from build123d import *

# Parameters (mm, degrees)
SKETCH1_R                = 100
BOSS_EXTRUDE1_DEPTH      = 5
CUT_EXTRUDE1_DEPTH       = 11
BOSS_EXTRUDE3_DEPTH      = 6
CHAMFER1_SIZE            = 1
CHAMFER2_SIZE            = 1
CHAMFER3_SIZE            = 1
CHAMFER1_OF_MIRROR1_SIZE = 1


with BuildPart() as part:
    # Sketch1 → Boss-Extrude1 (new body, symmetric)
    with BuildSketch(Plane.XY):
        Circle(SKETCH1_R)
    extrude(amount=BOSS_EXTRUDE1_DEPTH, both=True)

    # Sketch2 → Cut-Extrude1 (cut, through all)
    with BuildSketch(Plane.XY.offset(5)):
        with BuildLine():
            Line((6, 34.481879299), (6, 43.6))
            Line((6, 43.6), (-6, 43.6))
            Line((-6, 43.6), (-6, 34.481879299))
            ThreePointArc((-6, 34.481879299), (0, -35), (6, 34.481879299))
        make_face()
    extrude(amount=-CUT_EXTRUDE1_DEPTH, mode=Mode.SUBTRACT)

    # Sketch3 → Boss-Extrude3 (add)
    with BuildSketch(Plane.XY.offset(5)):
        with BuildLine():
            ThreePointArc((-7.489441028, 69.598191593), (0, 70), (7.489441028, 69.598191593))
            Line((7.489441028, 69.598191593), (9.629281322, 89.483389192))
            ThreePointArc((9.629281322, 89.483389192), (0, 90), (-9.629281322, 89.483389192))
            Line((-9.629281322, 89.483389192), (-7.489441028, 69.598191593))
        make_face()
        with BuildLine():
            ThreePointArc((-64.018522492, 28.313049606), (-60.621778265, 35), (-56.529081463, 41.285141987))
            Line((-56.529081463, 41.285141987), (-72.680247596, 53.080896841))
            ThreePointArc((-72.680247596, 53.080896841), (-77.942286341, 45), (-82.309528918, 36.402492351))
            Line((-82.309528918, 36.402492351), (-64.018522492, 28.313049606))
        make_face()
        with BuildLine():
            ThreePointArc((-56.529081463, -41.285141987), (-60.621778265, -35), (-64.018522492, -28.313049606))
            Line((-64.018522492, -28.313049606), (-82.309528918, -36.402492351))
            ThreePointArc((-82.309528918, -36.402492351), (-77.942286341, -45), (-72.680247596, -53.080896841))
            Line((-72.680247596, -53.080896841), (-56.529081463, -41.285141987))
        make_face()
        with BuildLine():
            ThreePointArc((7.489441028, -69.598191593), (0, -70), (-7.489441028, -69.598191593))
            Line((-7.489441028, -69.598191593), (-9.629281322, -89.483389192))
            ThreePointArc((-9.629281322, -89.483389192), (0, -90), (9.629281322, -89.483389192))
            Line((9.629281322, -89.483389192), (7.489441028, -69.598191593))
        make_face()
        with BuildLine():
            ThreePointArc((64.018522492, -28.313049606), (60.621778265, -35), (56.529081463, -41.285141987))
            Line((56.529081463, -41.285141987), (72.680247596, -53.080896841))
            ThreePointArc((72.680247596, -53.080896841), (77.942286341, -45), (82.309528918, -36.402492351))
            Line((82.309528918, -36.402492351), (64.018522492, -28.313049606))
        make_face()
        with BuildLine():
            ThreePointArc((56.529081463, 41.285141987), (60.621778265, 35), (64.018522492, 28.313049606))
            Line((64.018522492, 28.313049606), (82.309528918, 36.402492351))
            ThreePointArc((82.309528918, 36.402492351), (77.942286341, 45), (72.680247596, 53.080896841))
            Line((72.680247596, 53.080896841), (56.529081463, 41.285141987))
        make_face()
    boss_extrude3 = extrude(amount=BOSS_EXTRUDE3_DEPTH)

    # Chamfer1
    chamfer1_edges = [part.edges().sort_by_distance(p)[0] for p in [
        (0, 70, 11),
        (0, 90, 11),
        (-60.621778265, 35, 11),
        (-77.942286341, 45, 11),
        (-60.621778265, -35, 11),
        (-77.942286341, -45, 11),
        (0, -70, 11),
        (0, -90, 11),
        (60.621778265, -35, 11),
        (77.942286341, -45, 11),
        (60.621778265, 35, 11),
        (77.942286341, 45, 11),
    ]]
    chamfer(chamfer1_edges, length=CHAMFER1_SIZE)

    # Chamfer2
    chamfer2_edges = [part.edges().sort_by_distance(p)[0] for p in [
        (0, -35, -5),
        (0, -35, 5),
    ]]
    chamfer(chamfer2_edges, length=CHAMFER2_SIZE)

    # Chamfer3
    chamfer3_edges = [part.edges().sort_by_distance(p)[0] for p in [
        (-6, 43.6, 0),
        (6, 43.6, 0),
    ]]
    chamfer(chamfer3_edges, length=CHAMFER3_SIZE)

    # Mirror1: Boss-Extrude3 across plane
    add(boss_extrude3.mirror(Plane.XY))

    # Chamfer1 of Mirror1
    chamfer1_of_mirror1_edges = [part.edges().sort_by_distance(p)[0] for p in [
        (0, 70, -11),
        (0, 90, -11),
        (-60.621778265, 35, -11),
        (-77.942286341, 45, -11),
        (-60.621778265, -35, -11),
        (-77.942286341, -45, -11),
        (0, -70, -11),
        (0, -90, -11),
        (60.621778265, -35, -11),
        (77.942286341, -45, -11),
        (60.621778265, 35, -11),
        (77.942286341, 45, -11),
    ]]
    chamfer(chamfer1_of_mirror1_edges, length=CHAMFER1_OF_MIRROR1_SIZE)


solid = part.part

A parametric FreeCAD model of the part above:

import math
import FreeCAD as App
import Part
import Sketcher


def edges_at(feature, points):
    """Names of the edges that pass closest to the given points."""
    edges = feature.Shape.Edges
    near = lambda p: min(range(len(edges)), key=lambda i: edges[i].distToShape(Part.Vertex(*p))[0])
    return sorted({f"Edge{near(p) + 1}" for p in points})

doc = App.newDocument("Part")
body = doc.addObject("PartDesign::Body", "Body")

# Sketch on XY plane
sketch1 = body.newObject("Sketcher::SketchObject", "Sketch")
sketch1.AttachmentSupport = (doc.getObject("XY_Plane"), [""])
sketch1.MapMode = "FlatFace"
sketch1.addGeometry(Part.Circle(App.Vector(0, 0, 0), App.Vector(0, 0, 1), 100), False)
sketch1.addConstraint([
    Sketcher.Constraint("Coincident", 0, 3, -1, 1),
    Sketcher.Constraint("Diameter", 0, 200.0),
])
pad1 = body.newObject("PartDesign::Pad", "Pad")
pad1.Profile = sketch1
pad1.Length = 10
pad1.Midplane = True

# Sketch on XY plane
sketch2 = body.newObject("Sketcher::SketchObject", "Sketch001")
sketch2.AttachmentSupport = (doc.getObject("XY_Plane"), [""])
sketch2.MapMode = "FlatFace"
sketch2.AttachmentOffset = App.Placement(App.Vector(0, 0, 5), App.Rotation())
sketch2.addGeometry([
    Part.LineSegment(App.Vector(6, 34, 0), App.Vector(6, 44, 0)),
    Part.LineSegment(App.Vector(6, 44, 0), App.Vector(-6, 44, 0)),
    Part.LineSegment(App.Vector(-6, 44, 0), App.Vector(-6, 34, 0)),
    Part.ArcOfCircle(Part.Circle(App.Vector(0, 0, 0), App.Vector(0, 0, 1), 35), math.radians(100), math.radians(440)),
], False)
sketch2.addConstraint([
    Sketcher.Constraint("Coincident", 0, 2, 1, 1),
    Sketcher.Constraint("Coincident", 1, 2, 2, 1),
    Sketcher.Constraint("Coincident", 2, 2, 3, 1),
    Sketcher.Constraint("Coincident", 3, 2, 0, 1),
    Sketcher.Constraint("Vertical", 0),
    Sketcher.Constraint("Horizontal", 1),
    Sketcher.Constraint("Vertical", 2),
    Sketcher.Constraint("Coincident", 3, 3, -1, 1),
    Sketcher.Constraint("Horizontal", 2, 2, 3, 2),
    Sketcher.Constraint("Radius", 3, 35.0),
    Sketcher.Constraint("DistanceX", 1, 2, 1, 1, 12.0),
    Sketcher.Constraint("DistanceY", -1, 1, 0, 2, 43.6),
])
pocket1 = body.newObject("PartDesign::Pocket", "Pocket")
pocket1.Profile = sketch2
pocket1.Type = "ThroughAll"

# Sketch on XY plane
sketch3 = body.newObject("Sketcher::SketchObject", "Sketch002")
sketch3.AttachmentSupport = (doc.getObject("XY_Plane"), [""])
sketch3.MapMode = "FlatFace"
sketch3.AttachmentOffset = App.Placement(App.Vector(0, 0, 5), App.Rotation())
sketch3.addGeometry([
    Part.ArcOfCircle(Part.Circle(App.Vector(0, 0, 0), App.Vector(0, 0, 1), 70), math.radians(83.86), math.radians(96.14)),  # 0
    Part.LineSegment(App.Vector(7, 70, 0), App.Vector(10, 89, 0)),  # 1
    Part.ArcOfCircle(Part.Circle(App.Vector(0, 0, 0), App.Vector(0, 0, 1), 90), math.radians(83.86), math.radians(96.14)),  # 2
    Part.LineSegment(App.Vector(-10, 89, 0), App.Vector(-7, 70, 0)),  # 3
    Part.ArcOfCircle(Part.Circle(App.Vector(0, 0, 0), App.Vector(0, 0, 1), 70), math.radians(143.86), math.radians(156.14)),  # 4
    Part.LineSegment(App.Vector(-57, 41, 0), App.Vector(-73, 53, 0)),  # 5
    Part.ArcOfCircle(Part.Circle(App.Vector(0, 0, 0), App.Vector(0, 0, 1), 90), math.radians(143.86), math.radians(156.14)),  # 6
    Part.LineSegment(App.Vector(-82, 36, 0), App.Vector(-64, 28, 0)),  # 7
    Part.ArcOfCircle(Part.Circle(App.Vector(0, 0, 0), App.Vector(0, 0, 1), 70), math.radians(-156.14), math.radians(-143.86)),  # 8
    Part.LineSegment(App.Vector(-64, -28, 0), App.Vector(-82, -36, 0)),  # 9
    Part.ArcOfCircle(Part.Circle(App.Vector(0, 0, 0), App.Vector(0, 0, 1), 90), math.radians(-156.14), math.radians(-143.86)),  # 10
    Part.LineSegment(App.Vector(-73, -53, 0), App.Vector(-57, -41, 0)),  # 11
    Part.ArcOfCircle(Part.Circle(App.Vector(0, 0, 0), App.Vector(0, 0, 1), 70), math.radians(-96.14), math.radians(-83.86)),  # 12
    Part.LineSegment(App.Vector(-7, -70, 0), App.Vector(-10, -89, 0)),  # 13
    Part.ArcOfCircle(Part.Circle(App.Vector(0, 0, 0), App.Vector(0, 0, 1), 90), math.radians(-96.14), math.radians(-83.86)),  # 14
    Part.LineSegment(App.Vector(10, -89, 0), App.Vector(7, -70, 0)),  # 15
    Part.ArcOfCircle(Part.Circle(App.Vector(0, 0, 0), App.Vector(0, 0, 1), 70), math.radians(-36.14), math.radians(-23.86)),  # 16
    Part.LineSegment(App.Vector(57, -41, 0), App.Vector(73, -53, 0)),  # 17
    Part.ArcOfCircle(Part.Circle(App.Vector(0, 0, 0), App.Vector(0, 0, 1), 90), math.radians(-36.14), math.radians(-23.86)),  # 18
    Part.LineSegment(App.Vector(82, -36, 0), App.Vector(64, -28, 0)),  # 19
    Part.ArcOfCircle(Part.Circle(App.Vector(0, 0, 0), App.Vector(0, 0, 1), 70), math.radians(23.86), math.radians(36.14)),  # 20
    Part.LineSegment(App.Vector(64, 28, 0), App.Vector(82, 36, 0)),  # 21
    Part.ArcOfCircle(Part.Circle(App.Vector(0, 0, 0), App.Vector(0, 0, 1), 90), math.radians(23.86), math.radians(36.14)),  # 22
    Part.LineSegment(App.Vector(73, 53, 0), App.Vector(57, 41, 0)),  # 23
], False)
sketch3.addConstraint([
    Sketcher.Constraint("Coincident", 0, 1, 1, 1),
    Sketcher.Constraint("Coincident", 1, 2, 2, 1),
    Sketcher.Constraint("Coincident", 2, 2, 3, 1),
    Sketcher.Constraint("Coincident", 3, 2, 0, 2),
    Sketcher.Constraint("Coincident", 4, 1, 5, 1),
    Sketcher.Constraint("Coincident", 5, 2, 6, 1),
    Sketcher.Constraint("Coincident", 6, 2, 7, 1),
    Sketcher.Constraint("Coincident", 7, 2, 4, 2),
    Sketcher.Constraint("Coincident", 8, 1, 9, 1),
    Sketcher.Constraint("Coincident", 9, 2, 10, 1),
    Sketcher.Constraint("Coincident", 10, 2, 11, 1),
    Sketcher.Constraint("Coincident", 11, 2, 8, 2),
    Sketcher.Constraint("Coincident", 12, 1, 13, 1),
    Sketcher.Constraint("Coincident", 13, 2, 14, 1),
    Sketcher.Constraint("Coincident", 14, 2, 15, 1),
    Sketcher.Constraint("Coincident", 15, 2, 12, 2),
    Sketcher.Constraint("Coincident", 16, 1, 17, 1),
    Sketcher.Constraint("Coincident", 17, 2, 18, 1),
    Sketcher.Constraint("Coincident", 18, 2, 19, 1),
    Sketcher.Constraint("Coincident", 19, 2, 16, 2),
    Sketcher.Constraint("Coincident", 20, 1, 21, 1),
    Sketcher.Constraint("Coincident", 21, 2, 22, 1),
    Sketcher.Constraint("Coincident", 22, 2, 23, 1),
    Sketcher.Constraint("Coincident", 23, 2, 20, 2),
    Sketcher.Constraint("Coincident", 0, 3, -1, 1),
    Sketcher.Constraint("Coincident", 2, 3, -1, 1),
    Sketcher.Constraint("Coincident", 4, 3, -1, 1),
    Sketcher.Constraint("Coincident", 6, 3, -1, 1),
    Sketcher.Constraint("Coincident", 8, 3, -1, 1),
    Sketcher.Constraint("Coincident", 10, 3, -1, 1),
    Sketcher.Constraint("Coincident", 12, 3, -1, 1),
    Sketcher.Constraint("Coincident", 14, 3, -1, 1),
    Sketcher.Constraint("Coincident", 16, 3, -1, 1),
    Sketcher.Constraint("Coincident", 18, 3, -1, 1),
    Sketcher.Constraint("Coincident", 20, 3, -1, 1),
    Sketcher.Constraint("Coincident", 22, 3, -1, 1),
    Sketcher.Constraint("Equal", 0, 4),
    Sketcher.Constraint("Equal", 2, 6),
    Sketcher.Constraint("Equal", 4, 8),
    Sketcher.Constraint("Equal", 6, 10),
    Sketcher.Constraint("Equal", 8, 12),
    Sketcher.Constraint("Equal", 10, 14),
    Sketcher.Constraint("Equal", 12, 16),
    Sketcher.Constraint("Equal", 14, 18),
    Sketcher.Constraint("Equal", 16, 20),
    Sketcher.Constraint("Equal", 18, 22),
    Sketcher.Constraint("Parallel", 1, 13),
    Sketcher.Constraint("Parallel", 3, 15),
    Sketcher.Constraint("Parallel", 5, 17),
    Sketcher.Constraint("Parallel", 7, 19),
    Sketcher.Constraint("Parallel", 9, 21),
    Sketcher.Constraint("Parallel", 11, 23),
    Sketcher.Constraint("Horizontal", 1, 2, 2, 2),
    Sketcher.Constraint("Horizontal", 0, 1, 3, 2),
    Sketcher.Constraint("Horizontal", 13, 2, 14, 2),
    Sketcher.Constraint("Horizontal", 11, 2, 16, 1),
    Sketcher.Constraint("Horizontal", 10, 2, 17, 2),
    Sketcher.Constraint("Horizontal", 9, 2, 18, 2),
    Sketcher.Constraint("Horizontal", 8, 1, 19, 2),
    Sketcher.Constraint("Horizontal", 7, 2, 20, 1),
    Sketcher.Constraint("Horizontal", 5, 2, 22, 2),
    Sketcher.Constraint("Vertical", 7, 2, 8, 1),
    Sketcher.Constraint("Vertical", 5, 2, 10, 2),
    Sketcher.Constraint("Vertical", 3, 2, 12, 1),
    Sketcher.Constraint("Radius", 0, 70.0),
    Sketcher.Constraint("Radius", 2, 90.0),
    Sketcher.Constraint("DistanceX", 4, 1, 2, 2, 46.8998),
    Sketcher.Constraint("DistanceY", 6, 2, 3, 2, 33.195699),
    Sketcher.Constraint("DistanceY", 8, 1, 7, 2, 56.626099),
    Sketcher.Constraint("DistanceX", -1, 1, 0, 1, 7.489441),
    Sketcher.Constraint("DistanceX", -1, 1, 1, 2, 9.629281),
    Sketcher.Constraint("DistanceX", 5, 2, 0, 1, 80.169689),
])
pad2 = body.newObject("PartDesign::Pad", "Pad001")
pad2.Profile = sketch3
pad2.Length = 6
doc.recompute()

chamfer = body.newObject("PartDesign::Chamfer", "Chamfer")
chamfer.Base = (pad2, edges_at(pad2, [
    (0, 70, 11),
    (0, 90, 11),
    (-60.622, 35, 11),
    (-77.942, 45, 11),
    (-60.622, -35, 11),
    (-77.942, -45, 11),
    (0, -70, 11),
    (0, -90, 11),
    (60.622, -35, 11),
    (77.942, -45, 11),
    (60.622, 35, 11),
    (77.942, 45, 11),
]))
chamfer.Size = 1
doc.recompute()

chamfer2 = body.newObject("PartDesign::Chamfer", "Chamfer001")
chamfer2.Base = (chamfer, edges_at(chamfer, [(0, -35, -5), (0, -35, 5)]))
chamfer2.Size = 1
doc.recompute()

chamfer3 = body.newObject("PartDesign::Chamfer", "Chamfer002")
chamfer3.Base = (chamfer2, edges_at(chamfer2, [(-6, 43.6, 0), (6, 43.6, 0)]))
chamfer3.Size = 1
doc.recompute()

mirrored = body.newObject("PartDesign::Mirrored", "Mirrored")
mirrored.Originals = [pad2]
mirrored.MirrorPlane = (doc.getObject("XY_Plane"), [""])
body.Tip = mirrored
doc.recompute()

chamfer4 = body.newObject("PartDesign::Chamfer", "Chamfer003")
chamfer4.Base = (mirrored, edges_at(mirrored, [
    (0, 70, -11),
    (0, 90, -11),
    (-60.622, 35, -11),
    (-77.942, 45, -11),
    (-60.622, -35, -11),
    (-77.942, -45, -11),
    (0, -70, -11),
    (0, -90, -11),
    (60.622, -35, -11),
    (77.942, -45, -11),
    (60.622, 35, -11),
    (77.942, 45, -11),
]))
chamfer4.Size = 1

doc.recompute()
